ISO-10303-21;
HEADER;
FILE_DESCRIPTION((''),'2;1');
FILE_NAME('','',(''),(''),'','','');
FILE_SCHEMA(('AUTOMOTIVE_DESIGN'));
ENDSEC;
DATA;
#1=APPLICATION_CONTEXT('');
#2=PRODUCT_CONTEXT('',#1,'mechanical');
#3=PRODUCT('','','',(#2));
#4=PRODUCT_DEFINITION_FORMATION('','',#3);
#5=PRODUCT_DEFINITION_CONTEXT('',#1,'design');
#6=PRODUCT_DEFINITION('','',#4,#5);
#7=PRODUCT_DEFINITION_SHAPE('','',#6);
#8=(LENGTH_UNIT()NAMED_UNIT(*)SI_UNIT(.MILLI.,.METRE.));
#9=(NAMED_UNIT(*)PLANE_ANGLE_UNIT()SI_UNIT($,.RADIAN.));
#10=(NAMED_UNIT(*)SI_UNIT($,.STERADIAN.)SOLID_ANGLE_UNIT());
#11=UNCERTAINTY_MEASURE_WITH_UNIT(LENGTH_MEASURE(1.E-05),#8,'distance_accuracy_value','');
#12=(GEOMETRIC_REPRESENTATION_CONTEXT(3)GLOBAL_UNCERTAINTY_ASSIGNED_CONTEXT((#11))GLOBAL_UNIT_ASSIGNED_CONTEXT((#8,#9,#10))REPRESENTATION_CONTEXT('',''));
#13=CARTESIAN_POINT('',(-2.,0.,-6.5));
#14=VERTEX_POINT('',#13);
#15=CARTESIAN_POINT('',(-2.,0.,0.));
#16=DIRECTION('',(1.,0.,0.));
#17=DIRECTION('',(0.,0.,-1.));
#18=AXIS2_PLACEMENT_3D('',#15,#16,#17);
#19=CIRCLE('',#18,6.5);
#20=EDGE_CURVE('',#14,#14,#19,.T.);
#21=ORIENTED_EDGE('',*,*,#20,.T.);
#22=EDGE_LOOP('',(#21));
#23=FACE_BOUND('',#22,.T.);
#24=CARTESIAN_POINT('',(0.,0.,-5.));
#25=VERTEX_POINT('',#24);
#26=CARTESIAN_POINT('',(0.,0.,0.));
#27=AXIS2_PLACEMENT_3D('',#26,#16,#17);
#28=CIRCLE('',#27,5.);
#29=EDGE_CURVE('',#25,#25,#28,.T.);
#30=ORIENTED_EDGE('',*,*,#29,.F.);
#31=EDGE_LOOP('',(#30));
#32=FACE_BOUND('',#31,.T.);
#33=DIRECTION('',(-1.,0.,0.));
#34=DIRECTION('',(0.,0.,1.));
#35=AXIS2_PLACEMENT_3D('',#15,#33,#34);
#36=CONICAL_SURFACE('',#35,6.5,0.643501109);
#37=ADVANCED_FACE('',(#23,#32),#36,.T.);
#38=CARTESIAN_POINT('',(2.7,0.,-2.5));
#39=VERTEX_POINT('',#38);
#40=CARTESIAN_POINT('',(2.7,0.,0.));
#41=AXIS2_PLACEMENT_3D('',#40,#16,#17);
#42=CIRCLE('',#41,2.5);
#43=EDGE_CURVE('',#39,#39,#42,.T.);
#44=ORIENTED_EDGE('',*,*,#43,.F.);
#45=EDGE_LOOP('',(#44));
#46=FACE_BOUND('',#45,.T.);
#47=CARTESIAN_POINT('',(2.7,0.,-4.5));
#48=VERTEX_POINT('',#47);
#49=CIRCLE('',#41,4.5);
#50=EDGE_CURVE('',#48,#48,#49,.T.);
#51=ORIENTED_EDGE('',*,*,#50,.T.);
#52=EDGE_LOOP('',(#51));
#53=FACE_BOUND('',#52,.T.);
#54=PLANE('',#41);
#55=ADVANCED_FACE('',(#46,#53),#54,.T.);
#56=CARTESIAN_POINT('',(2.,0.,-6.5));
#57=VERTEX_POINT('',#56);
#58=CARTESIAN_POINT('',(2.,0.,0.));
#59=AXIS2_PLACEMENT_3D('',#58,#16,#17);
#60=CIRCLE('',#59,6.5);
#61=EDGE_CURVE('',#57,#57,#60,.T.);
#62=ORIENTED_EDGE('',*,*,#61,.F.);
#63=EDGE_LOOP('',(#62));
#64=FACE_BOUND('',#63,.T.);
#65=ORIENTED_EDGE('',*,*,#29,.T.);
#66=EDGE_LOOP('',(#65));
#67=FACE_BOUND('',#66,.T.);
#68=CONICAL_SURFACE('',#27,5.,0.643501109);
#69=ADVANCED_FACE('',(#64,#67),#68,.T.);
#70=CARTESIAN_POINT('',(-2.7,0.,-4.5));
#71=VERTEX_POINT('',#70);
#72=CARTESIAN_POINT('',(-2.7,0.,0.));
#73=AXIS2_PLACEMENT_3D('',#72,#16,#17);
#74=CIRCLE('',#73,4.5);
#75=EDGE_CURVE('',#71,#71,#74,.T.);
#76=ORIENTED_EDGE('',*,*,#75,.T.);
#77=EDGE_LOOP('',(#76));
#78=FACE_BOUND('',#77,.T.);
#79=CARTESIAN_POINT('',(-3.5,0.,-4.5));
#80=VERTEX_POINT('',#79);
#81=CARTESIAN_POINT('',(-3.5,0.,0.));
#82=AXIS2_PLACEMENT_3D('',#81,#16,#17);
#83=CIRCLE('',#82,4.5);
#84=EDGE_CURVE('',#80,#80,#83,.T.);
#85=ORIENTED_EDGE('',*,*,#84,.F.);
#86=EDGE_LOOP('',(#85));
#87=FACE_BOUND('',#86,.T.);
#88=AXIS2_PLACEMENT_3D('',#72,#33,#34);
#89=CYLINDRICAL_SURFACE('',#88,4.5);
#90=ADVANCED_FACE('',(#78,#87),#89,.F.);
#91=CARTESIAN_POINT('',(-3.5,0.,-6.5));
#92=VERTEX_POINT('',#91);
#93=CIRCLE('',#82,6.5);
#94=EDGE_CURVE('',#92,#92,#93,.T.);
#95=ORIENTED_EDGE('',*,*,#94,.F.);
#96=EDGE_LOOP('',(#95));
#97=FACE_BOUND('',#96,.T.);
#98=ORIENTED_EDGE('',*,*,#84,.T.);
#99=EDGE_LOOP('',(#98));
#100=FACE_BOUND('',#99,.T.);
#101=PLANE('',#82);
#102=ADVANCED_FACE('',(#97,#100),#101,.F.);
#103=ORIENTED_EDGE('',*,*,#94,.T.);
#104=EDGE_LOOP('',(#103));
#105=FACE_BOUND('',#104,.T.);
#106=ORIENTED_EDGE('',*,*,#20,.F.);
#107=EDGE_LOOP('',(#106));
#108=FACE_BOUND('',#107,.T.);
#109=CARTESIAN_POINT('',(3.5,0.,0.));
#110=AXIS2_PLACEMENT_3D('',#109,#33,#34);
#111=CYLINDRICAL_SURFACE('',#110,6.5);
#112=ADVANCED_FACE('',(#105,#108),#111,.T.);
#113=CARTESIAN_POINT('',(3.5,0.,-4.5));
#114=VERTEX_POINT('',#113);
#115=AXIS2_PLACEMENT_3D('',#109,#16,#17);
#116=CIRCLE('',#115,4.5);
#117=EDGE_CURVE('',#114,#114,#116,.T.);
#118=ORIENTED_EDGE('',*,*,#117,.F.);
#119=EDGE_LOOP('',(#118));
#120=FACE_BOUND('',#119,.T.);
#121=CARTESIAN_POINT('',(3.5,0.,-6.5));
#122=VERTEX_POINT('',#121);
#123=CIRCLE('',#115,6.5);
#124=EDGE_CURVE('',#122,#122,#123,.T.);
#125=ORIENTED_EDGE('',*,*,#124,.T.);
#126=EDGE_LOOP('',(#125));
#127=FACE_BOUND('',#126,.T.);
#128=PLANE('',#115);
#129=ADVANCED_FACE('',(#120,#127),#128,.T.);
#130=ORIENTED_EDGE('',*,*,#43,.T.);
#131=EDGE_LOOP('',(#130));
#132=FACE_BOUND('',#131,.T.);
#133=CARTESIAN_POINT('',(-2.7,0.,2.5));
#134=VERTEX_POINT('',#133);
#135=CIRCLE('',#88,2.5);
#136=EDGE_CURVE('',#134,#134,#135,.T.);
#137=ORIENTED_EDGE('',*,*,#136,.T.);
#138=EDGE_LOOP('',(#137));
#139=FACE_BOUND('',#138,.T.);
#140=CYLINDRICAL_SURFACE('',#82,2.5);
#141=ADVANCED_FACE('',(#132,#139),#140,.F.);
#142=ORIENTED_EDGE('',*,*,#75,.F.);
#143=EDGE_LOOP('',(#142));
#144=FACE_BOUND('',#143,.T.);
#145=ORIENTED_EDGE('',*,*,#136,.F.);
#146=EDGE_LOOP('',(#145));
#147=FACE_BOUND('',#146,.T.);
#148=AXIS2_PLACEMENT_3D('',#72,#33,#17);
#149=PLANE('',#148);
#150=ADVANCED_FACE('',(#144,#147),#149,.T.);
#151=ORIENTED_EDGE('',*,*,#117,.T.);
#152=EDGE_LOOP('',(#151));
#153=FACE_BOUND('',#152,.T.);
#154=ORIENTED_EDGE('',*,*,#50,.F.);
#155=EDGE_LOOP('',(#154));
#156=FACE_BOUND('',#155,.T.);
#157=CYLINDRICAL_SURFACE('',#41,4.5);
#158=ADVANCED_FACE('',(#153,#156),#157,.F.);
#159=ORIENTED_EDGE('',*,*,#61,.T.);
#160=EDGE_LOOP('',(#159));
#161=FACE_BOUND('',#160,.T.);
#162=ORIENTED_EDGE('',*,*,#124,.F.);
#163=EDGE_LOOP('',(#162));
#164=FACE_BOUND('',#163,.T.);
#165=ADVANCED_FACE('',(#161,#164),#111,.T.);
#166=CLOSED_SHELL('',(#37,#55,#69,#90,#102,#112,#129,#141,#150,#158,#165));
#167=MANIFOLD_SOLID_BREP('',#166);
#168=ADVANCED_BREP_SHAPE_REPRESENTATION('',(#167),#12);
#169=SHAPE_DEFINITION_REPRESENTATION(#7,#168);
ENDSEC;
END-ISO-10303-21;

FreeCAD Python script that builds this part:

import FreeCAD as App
import Part
import Sketcher

V = App.Vector


def add_polygon(sketch, points):
    """Adds a closed chain of lines whose ends are joined by coincident constraints."""
    first, n = sketch.GeometryCount, len(points)
    for a, b in zip(points, points[1:] + points[:1]):
        sketch.addGeometry(Part.LineSegment(App.Vector(*a, 0), App.Vector(*b, 0)), False)
    for i in range(n):
        sketch.addConstraint(Sketcher.Constraint("Coincident", first + i, 2, first + (i + 1) % n, 1))

doc = App.newDocument("Part")
body = doc.addObject("PartDesign::Body", "Body")

sketch1 = body.newObject("Sketcher::SketchObject", "Sketch")
sketch1.AttachmentSupport = (doc.getObject("YZ_Plane"), [""])
sketch1.MapMode = "FlatFace"
sketch1.addGeometry(Part.Circle(V(0, 0, 0), V(0, 0, 1), 6), False)
sketch1.addConstraint(Sketcher.Constraint("Coincident", 0, 3, -1, 1))
sketch1.addConstraint(Sketcher.Constraint("Diameter", 0, 13.0))
pad1 = body.newObject("PartDesign::Pad", "Pad")
pad1.Profile = sketch1
pad1.Length = 7
pad1.Midplane = True

sketch2 = body.newObject("Sketcher::SketchObject", "Sketch001")
sketch2.AttachmentSupport = (doc.getObject("XY_Plane"), [""])
sketch2.MapMode = "FlatFace"
add_polygon(sketch2, [(-2, 6.5), (0, 5), (2, 6.5)])
sketch2.addConstraint(Sketcher.Constraint("Horizontal", 2))
sketch2.addConstraint(Sketcher.Constraint("PointOnObject", 0, 2, -2))
sketch2.addConstraint(Sketcher.Constraint("Equal", 0, 1))
sketch2.addConstraint(Sketcher.Constraint("DistanceX", 2, 2, 2, 1, 4.0))
sketch2.addConstraint(Sketcher.Constraint("DistanceY", -1, 1, 0, 2, 5.0))
sketch2.addConstraint(Sketcher.Constraint("Distance", 0, 2.5))
groove = body.newObject("PartDesign::Groove", "Groove")
groove.Profile = sketch2
groove.ReferenceAxis = (sketch2, ["H_Axis"])
groove.Angle = 360

sketch3 = body.newObject("Sketcher::SketchObject", "Sketch002")
sketch3.AttachmentSupport = (doc.getObject("YZ_Plane"), [""])
sketch3.MapMode = "FlatFace"
sketch3.AttachmentOffset = App.Placement(V(0, 0, 3.5), App.Rotation())
sketch3.addGeometry(Part.Circle(V(0, 0, 0), V(0, 0, 1), 4.5), False)
sketch3.addConstraint(Sketcher.Constraint("Coincident", 0, 3, -1, 1))
sketch3.addConstraint(Sketcher.Constraint("Diameter", 0, 9.0))
pocket1 = body.newObject("PartDesign::Pocket", "Pocket")
pocket1.Profile = sketch3
pocket1.Length = 0.8
doc.recompute()

mirrored = body.newObject("PartDesign::Mirrored", "Mirrored")
mirrored.Originals = [pocket1]
mirrored.MirrorPlane = (doc.getObject("YZ_Plane"), [""])
body.Tip = mirrored

sketch4 = body.newObject("Sketcher::SketchObject", "Sketch003")
sketch4.AttachmentSupport = (doc.getObject("YZ_Plane"), [""])
sketch4.MapMode = "FlatFace"
sketch4.addGeometry(Part.Circle(V(0, 0, 0), V(0, 0, 1), 2.5), False)
sketch4.addConstraint(Sketcher.Constraint("Coincident", 0, 3, -1, 1))
sketch4.addConstraint(Sketcher.Constraint("Diameter", 0, 5.0))
pocket2 = body.newObject("PartDesign::Pocket", "Pocket001")
pocket2.Profile = sketch4
pocket2.Type = "ThroughAll"
pocket2.Midplane = True

doc.recompute()
